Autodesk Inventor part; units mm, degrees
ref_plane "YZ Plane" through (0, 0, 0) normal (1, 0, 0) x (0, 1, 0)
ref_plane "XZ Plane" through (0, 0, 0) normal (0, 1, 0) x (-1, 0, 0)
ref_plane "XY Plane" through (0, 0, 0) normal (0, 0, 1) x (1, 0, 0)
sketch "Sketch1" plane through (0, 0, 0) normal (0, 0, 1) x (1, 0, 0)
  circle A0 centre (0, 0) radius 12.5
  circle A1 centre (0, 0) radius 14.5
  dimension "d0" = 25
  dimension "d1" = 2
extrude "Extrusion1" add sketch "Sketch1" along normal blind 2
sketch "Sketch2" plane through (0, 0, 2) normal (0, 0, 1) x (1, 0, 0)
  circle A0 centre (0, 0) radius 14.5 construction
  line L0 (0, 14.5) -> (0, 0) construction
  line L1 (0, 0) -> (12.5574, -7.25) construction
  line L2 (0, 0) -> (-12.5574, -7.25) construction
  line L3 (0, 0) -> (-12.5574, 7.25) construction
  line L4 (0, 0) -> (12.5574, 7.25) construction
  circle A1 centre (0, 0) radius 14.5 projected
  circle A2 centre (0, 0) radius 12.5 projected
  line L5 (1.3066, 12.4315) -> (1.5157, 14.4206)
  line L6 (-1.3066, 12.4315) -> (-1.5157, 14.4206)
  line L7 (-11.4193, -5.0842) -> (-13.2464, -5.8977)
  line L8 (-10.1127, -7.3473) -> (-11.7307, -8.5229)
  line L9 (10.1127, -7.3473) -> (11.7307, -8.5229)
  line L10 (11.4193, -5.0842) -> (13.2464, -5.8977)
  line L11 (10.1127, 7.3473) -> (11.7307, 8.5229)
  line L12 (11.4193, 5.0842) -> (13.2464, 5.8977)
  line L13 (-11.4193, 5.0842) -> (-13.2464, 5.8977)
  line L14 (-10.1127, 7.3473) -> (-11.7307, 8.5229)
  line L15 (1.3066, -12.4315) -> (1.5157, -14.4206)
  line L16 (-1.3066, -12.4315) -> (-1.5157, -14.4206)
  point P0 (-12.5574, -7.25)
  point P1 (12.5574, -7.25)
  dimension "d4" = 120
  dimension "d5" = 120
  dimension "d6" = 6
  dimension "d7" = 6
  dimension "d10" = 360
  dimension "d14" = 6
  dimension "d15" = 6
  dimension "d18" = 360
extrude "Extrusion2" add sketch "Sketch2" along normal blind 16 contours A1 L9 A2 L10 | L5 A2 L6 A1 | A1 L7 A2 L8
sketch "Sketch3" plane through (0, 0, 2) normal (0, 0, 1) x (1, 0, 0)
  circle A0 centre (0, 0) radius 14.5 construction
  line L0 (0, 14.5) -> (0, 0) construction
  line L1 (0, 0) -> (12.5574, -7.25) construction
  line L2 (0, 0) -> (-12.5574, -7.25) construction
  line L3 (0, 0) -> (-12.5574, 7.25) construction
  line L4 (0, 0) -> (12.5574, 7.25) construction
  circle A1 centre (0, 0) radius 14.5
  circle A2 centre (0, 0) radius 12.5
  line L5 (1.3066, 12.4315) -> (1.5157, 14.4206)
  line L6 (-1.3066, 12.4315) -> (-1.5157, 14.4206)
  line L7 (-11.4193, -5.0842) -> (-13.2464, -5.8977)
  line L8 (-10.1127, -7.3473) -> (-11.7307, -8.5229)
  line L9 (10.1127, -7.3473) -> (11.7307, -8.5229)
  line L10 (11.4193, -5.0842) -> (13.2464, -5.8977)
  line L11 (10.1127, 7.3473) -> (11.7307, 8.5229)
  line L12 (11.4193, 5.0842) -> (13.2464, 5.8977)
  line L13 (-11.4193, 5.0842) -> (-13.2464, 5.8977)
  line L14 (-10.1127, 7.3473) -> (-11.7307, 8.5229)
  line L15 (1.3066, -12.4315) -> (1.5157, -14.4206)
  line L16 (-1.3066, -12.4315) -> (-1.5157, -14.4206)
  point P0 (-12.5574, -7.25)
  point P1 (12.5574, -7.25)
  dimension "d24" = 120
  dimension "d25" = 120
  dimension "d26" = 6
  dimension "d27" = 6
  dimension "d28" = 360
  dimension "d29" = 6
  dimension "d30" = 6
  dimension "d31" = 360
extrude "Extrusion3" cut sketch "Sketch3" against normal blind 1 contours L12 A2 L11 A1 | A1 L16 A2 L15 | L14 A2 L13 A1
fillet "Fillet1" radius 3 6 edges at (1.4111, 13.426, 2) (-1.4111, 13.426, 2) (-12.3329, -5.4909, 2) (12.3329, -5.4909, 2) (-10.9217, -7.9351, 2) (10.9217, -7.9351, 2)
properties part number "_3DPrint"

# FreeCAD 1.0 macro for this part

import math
import FreeCAD as App
import Part
import Sketcher
from FreeCAD import Vector
Q = App.Units.Quantity


def edges_at(feature, points):
    """Names of the edges that pass closest to the given points."""
    edges = feature.Shape.Edges
    near = lambda p: min(range(len(edges)), key=lambda i: edges[i].distToShape(Part.Vertex(*p))[0])
    return sorted({f"Edge{near(p) + 1}" for p in points})

doc = App.newDocument("Part")
params = doc.addObject("Spreadsheet::Sheet", "Params")
for row, (alias, value) in enumerate([
    ("sketch1_diameter", "25 mm"),
    ("sketch1_diameter2", "29 mm"),
    ("pad1_length", "2 mm"),
    ("sketch2_radius", "14.5 mm"),
    ("sketch2_radius2", "12.5 mm"),
    ("pad2_length", "16 mm"),
    ("sketch3_radius", "14.5 mm"),
    ("sketch3_radius2", "12.5 mm"),
    ("pocket1_length", "1 mm"),
    ("fillet_radius", "3 mm"),
], start=1):
    params.set(f"A{row}", alias)
    params.set(f"B{row}", "=" + value)
    params.setAlias(f"B{row}", alias)

body = doc.addObject("PartDesign::Body", "Body")

sketch1 = doc.addObject("Sketcher::SketchObject", "Sketch")
body.addObject(sketch1)
sketch1.AttachmentSupport = (doc.XY_Plane, [""])
sketch1.MapMode = "FlatFace"
sketch1.addGeometry(Part.Circle(Vector(0, 0, 0), Vector(0, 0, 1), 14.5), False)
sketch1.addGeometry(Part.Circle(Vector(0, 0, 0), Vector(0, 0, 1), 12.5), False)
sketch1.addConstraint(Sketcher.Constraint("Coincident", 0, 3, -1, 1))
sketch1.addConstraint(Sketcher.Constraint("Coincident", 1, 3, -1, 1))
sketch1.addConstraint(Sketcher.Constraint("Diameter", 1, 25.0))
sketch1.addConstraint(Sketcher.Constraint("Diameter", 0, 29.0))
sketch1.setExpression("Constraints[2]", "Params.sketch1_diameter")
sketch1.setExpression("Constraints[3]", "Params.sketch1_diameter2")
pad1 = doc.addObject("PartDesign::Pad", "Pad")
body.addObject(pad1)
pad1.Profile = sketch1
pad1.setExpression("Length", "Params.pad1_length")

sketch2 = doc.addObject("Sketcher::SketchObject", "Sketch001")
body.addObject(sketch2)
sketch2.AttachmentSupport = (doc.XY_Plane, [""])
sketch2.MapMode = "FlatFace"
sketch2.AttachmentOffset = App.Placement(Vector(0, 0, 2), App.Rotation())
sketch2.addGeometry(Part.ArcOfCircle(Part.Circle(Vector(0, 0, 0), Vector(0, 0, 1), 14.5), math.radians(-36.000152), math.radians(-24.000082)), False)
sketch2.addGeometry(Part.LineSegment(Vector(13.2464, -5.8977, 0), Vector(11.4193, -5.0842, 0)), False)
sketch2.addGeometry(Part.ArcOfCircle(Part.Circle(Vector(0, 0, 0), Vector(0, 0, 1), 12.5), math.radians(-35.999975), math.radians(-24)), False)
sketch2.addGeometry(Part.LineSegment(Vector(10.1127, -7.3473, 0), Vector(11.7307, -8.5229, 0)), False)
sketch2.addGeometry(Part.LineSegment(Vector(1.3066, 12.4315, 0), Vector(1.5157, 14.4206, 0)), False)
sketch2.addGeometry(Part.ArcOfCircle(Part.Circle(Vector(0, 0, 0), Vector(0, 0, 1), 14.5), math.radians(83.999867), math.radians(96.000133)), False)
sketch2.addGeometry(Part.LineSegment(Vector(-1.5157, 14.4206, 0), Vector(-1.3066, 12.4315, 0)), False)
sketch2.addGeometry(Part.ArcOfCircle(Part.Circle(Vector(0, 0, 0), Vector(0, 0, 1), 12.5), math.radians(84.000015), math.radians(95.999985)), False)
sketch2.addGeometry(Part.ArcOfCircle(Part.Circle(Vector(0, 0, 0), Vector(0, 0, 1), 14.5), math.radians(-155.999918), math.radians(-143.999848)), False)
sketch2.addGeometry(Part.LineSegment(Vector(-11.7307, -8.5229, 0), Vector(-10.1127, -7.3473, 0)), False)
sketch2.addGeometry(Part.ArcOfCircle(Part.Circle(Vector(0, 0, 0), Vector(0, 0, 1), 12.5), math.radians(-156), math.radians(-144.000025)), False)
sketch2.addGeometry(Part.LineSegment(Vector(-11.4193, -5.0842, 0), Vector(-13.2464, -5.8977, 0)), False)
sketch2.addConstraint(Sketcher.Constraint("Coincident", 0, 2, 1, 1))
sketch2.addConstraint(Sketcher.Constraint("Coincident", 1, 2, 2, 2))
sketch2.addConstraint(Sketcher.Constraint("Coincident", 2, 1, 3, 1))
sketch2.addConstraint(Sketcher.Constraint("Coincident", 3, 2, 0, 1))
sketch2.addConstraint(Sketcher.Constraint("Coincident", 4, 2, 5, 1))
sketch2.addConstraint(Sketcher.Constraint("Coincident", 5, 2, 6, 1))
sketch2.addConstraint(Sketcher.Constraint("Coincident", 6, 2, 7, 2))
sketch2.addConstraint(Sketcher.Constraint("Coincident", 7, 1, 4, 1))
sketch2.addConstraint(Sketcher.Constraint("Coincident", 8, 2, 9, 1))
sketch2.addConstraint(Sketcher.Constraint("Coincident", 9, 2, 10, 2))
sketch2.addConstraint(Sketcher.Constraint("Coincident", 10, 1, 11, 1))
sketch2.addConstraint(Sketcher.Constraint("Coincident", 11, 2, 8, 1))
sketch2.addConstraint(Sketcher.Constraint("Coincident", 0, 3, -1, 1))
sketch2.addConstraint(Sketcher.Constraint("Coincident", 2, 3, -1, 1))
sketch2.addConstraint(Sketcher.Constraint("Coincident", 5, 3, -1, 1))
sketch2.addConstraint(Sketcher.Constraint("Coincident", 7, 3, -1, 1))
sketch2.addConstraint(Sketcher.Constraint("Coincident", 8, 3, -1, 1))
sketch2.addConstraint(Sketcher.Constraint("Coincident", 10, 3, -1, 1))
sketch2.addConstraint(Sketcher.Constraint("Equal", 0, 5))
sketch2.addConstraint(Sketcher.Constraint("Equal", 2, 7))
sketch2.addConstraint(Sketcher.Constraint("Equal", 5, 8))
sketch2.addConstraint(Sketcher.Constraint("Equal", 7, 10))
sketch2.addConstraint(Sketcher.Constraint("Horizontal", 4, 2, 5, 2))
sketch2.addConstraint(Sketcher.Constraint("Horizontal", 6, 2, 7, 1))
sketch2.addConstraint(Sketcher.Constraint("Horizontal", 3, 2, 8, 2))
sketch2.addConstraint(Sketcher.Constraint("Horizontal", 2, 1, 9, 2))
sketch2.addConstraint(Sketcher.Constraint("Horizontal", 1, 2, 10, 1))
sketch2.addConstraint(Sketcher.Constraint("Horizontal", 0, 2, 11, 2))
sketch2.addConstraint(Sketcher.Constraint("Radius", 0, 14.5))
sketch2.addConstraint(Sketcher.Constraint("Radius", 2, 12.5))
sketch2.addConstraint(Sketcher.Constraint("Angle", 1, Q("155.9994 deg")))
sketch2.addConstraint(Sketcher.Constraint("Angle", 4, Q("83.999 deg")))
sketch2.addConstraint(Sketcher.Constraint("DistanceY", 3, 2, -1, 1, 8.523))
sketch2.addConstraint(Sketcher.Constraint("DistanceY", 2, 1, 1, 2, 2.263))
sketch2.addConstraint(Sketcher.Constraint("DistanceX", 2, 1, 3, 2, 1.618))
sketch2.addConstraint(Sketcher.Constraint("DistanceX", -1, 1, 4, 2, 1.5157))
sketch2.setExpression("Constraints[28]", "Params.sketch2_radius")
sketch2.setExpression("Constraints[29]", "Params.sketch2_radius2")
pad2 = doc.addObject("PartDesign::Pad", "Pad001")
body.addObject(pad2)
pad2.Profile = sketch2
pad2.setExpression("Length", "Params.pad2_length")

sketch3 = doc.addObject("Sketcher::SketchObject", "Sketch002")
body.addObject(sketch3)
sketch3.AttachmentSupport = (doc.XY_Plane, [""])
sketch3.MapMode = "FlatFace"
sketch3.AttachmentOffset = App.Placement(Vector(0, 0, 2), App.Rotation())
sketch3.addGeometry(Part.LineSegment(Vector(11.4193, 5.0842, 0), Vector(13.2464, 5.8977, 0)), False)
sketch3.addGeometry(Part.ArcOfCircle(Part.Circle(Vector(0, 0, 0), Vector(0, 0, 1), 14.5), math.radians(24.000082), math.radians(36.000152)), False)
sketch3.addGeometry(Part.LineSegment(Vector(11.7307, 8.5229, 0), Vector(10.1127, 7.3473, 0)), False)
sketch3.addGeometry(Part.ArcOfCircle(Part.Circle(Vector(0, 0, 0), Vector(0, 0, 1), 12.5), math.radians(24), math.radians(35.999975)), False)
sketch3.addGeometry(Part.ArcOfCircle(Part.Circle(Vector(0, 0, 0), Vector(0, 0, 1), 14.5), math.radians(-96.000133), math.radians(-83.999867)), False)
sketch3.addGeometry(Part.LineSegment(Vector(1.5157, -14.4206, 0), Vector(1.3066, -12.4315, 0)), False)
sketch3.addGeometry(Part.ArcOfCircle(Part.Circle(Vector(0, 0, 0), Vector(0, 0, 1), 12.5), math.radians(-95.999985), math.radians(-84.000015)), False)
sketch3.addGeometry(Part.LineSegment(Vector(-1.3066, -12.4315, 0), Vector(-1.5157, -14.4206, 0)), False)
sketch3.addGeometry(Part.LineSegment(Vector(-10.1127, 7.3473, 0), Vector(-11.7307, 8.5229, 0)), False)
sketch3.addGeometry(Part.ArcOfCircle(Part.Circle(Vector(0, 0, 0), Vector(0, 0, 1), 14.5), math.radians(143.999848), math.radians(155.999918)), False)
sketch3.addGeometry(Part.LineSegment(Vector(-13.2464, 5.8977, 0), Vector(-11.4193, 5.0842, 0)), False)
sketch3.addGeometry(Part.ArcOfCircle(Part.Circle(Vector(0, 0, 0), Vector(0, 0, 1), 12.5), math.radians(144.000025), math.radians(156)), False)
sketch3.addConstraint(Sketcher.Constraint("Coincident", 0, 2, 1, 1))
sketch3.addConstraint(Sketcher.Constraint("Coincident", 1, 2, 2, 1))
sketch3.addConstraint(Sketcher.Constraint("Coincident", 2, 2, 3, 2))
sketch3.addConstraint(Sketcher.Constraint("Coincident", 3, 1, 0, 1))
sketch3.addConstraint(Sketcher.Constraint("Coincident", 4, 2, 5, 1))
sketch3.addConstraint(Sketcher.Constraint("Coincident", 5, 2, 6, 2))
sketch3.addConstraint(Sketcher.Constraint("Coincident", 6, 1, 7, 1))
sketch3.addConstraint(Sketcher.Constraint("Coincident", 7, 2, 4, 1))
sketch3.addConstraint(Sketcher.Constraint("Coincident", 8, 2, 9, 1))
sketch3.addConstraint(Sketcher.Constraint("Coincident", 9, 2, 10, 1))
sketch3.addConstraint(Sketcher.Constraint("Coincident", 10, 2, 11, 2))
sketch3.addConstraint(Sketcher.Constraint("Coincident", 11, 1, 8, 1))
sketch3.addConstraint(Sketcher.Constraint("Coincident", 1, 3, -1, 1))
sketch3.addConstraint(Sketcher.Constraint("Coincident", 3, 3, -1, 1))
sketch3.addConstraint(Sketcher.Constraint("Coincident", 4, 3, -1, 1))
sketch3.addConstraint(Sketcher.Constraint("Coincident", 6, 3, -1, 1))
sketch3.addConstraint(Sketcher.Constraint("Coincident", 9, 3, -1, 1))
sketch3.addConstraint(Sketcher.Constraint("Coincident", 11, 3, -1, 1))
sketch3.addConstraint(Sketcher.Constraint("Equal", 1, 4))
sketch3.addConstraint(Sketcher.Constraint("Equal", 3, 6))
sketch3.addConstraint(Sketcher.Constraint("Equal", 4, 9))
sketch3.addConstraint(Sketcher.Constraint("Equal", 6, 11))
sketch3.addConstraint(Sketcher.Constraint("Horizontal", 5, 2, 6, 1))
sketch3.addConstraint(Sketcher.Constraint("Horizontal", 4, 2, 7, 2))
sketch3.addConstraint(Sketcher.Constraint("Horizontal", 1, 2, 8, 2))
sketch3.addConstraint(Sketcher.Constraint("Horizontal", 0, 2, 9, 2))
sketch3.addConstraint(Sketcher.Constraint("Horizontal", 3, 1, 10, 2))
sketch3.addConstraint(Sketcher.Constraint("Horizontal", 2, 2, 11, 1))
sketch3.addConstraint(Sketcher.Constraint("Radius", 1, 14.5))
sketch3.addConstraint(Sketcher.Constraint("Radius", 3, 12.5))
sketch3.addConstraint(Sketcher.Constraint("Angle", 0, Q("24.0006 deg")))
sketch3.addConstraint(Sketcher.Constraint("Angle", 5, Q("96.001 deg")))
sketch3.addConstraint(Sketcher.Constraint("DistanceY", -1, 1, 1, 2, 8.523))
sketch3.addConstraint(Sketcher.Constraint("DistanceX", 2, 2, 1, 2, 1.618))
sketch3.addConstraint(Sketcher.Constraint("DistanceY", 3, 1, 2, 2, 2.263))
sketch3.addConstraint(Sketcher.Constraint("DistanceX", -1, 1, 4, 2, 1.5157))
sketch3.setExpression("Constraints[28]", "Params.sketch3_radius")
sketch3.setExpression("Constraints[29]", "Params.sketch3_radius2")
pocket1 = doc.addObject("PartDesign::Pocket", "Pocket")
body.addObject(pocket1)
pocket1.Profile = sketch3
pocket1.setExpression("Length", "Params.pocket1_length")
doc.recompute()

fillet = doc.addObject("PartDesign::Fillet", "Fillet")
body.addObject(fillet)
fillet.Base = (pocket1, edges_at(pocket1, [
    (1.411, 13.426, 2),
    (-1.411, 13.426, 2),
    (-12.333, -5.491, 2),
    (12.333, -5.491, 2),
    (-10.922, -7.935, 2),
    (10.922, -7.935, 2),
]))
fillet.setExpression("Radius", "Params.fillet_radius")

doc.recompute()
